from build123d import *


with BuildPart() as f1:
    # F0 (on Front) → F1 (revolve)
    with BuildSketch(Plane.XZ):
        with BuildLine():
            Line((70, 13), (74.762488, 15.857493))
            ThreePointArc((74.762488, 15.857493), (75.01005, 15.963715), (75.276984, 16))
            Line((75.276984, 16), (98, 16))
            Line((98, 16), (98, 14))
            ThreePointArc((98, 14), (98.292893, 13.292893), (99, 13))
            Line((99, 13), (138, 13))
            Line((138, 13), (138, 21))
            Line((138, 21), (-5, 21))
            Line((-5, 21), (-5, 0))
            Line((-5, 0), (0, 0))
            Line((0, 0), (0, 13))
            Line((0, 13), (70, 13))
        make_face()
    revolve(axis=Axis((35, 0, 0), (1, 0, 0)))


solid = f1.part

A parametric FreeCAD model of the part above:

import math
import FreeCAD as App
import Part
import Sketcher
Q = App.Units.Quantity

doc = App.newDocument("Part")
body = doc.addObject("PartDesign::Body", "Body")

# Sketch on XZ plane
sketch1 = body.newObject("Sketcher::SketchObject", "Sketch")
sketch1.AttachmentSupport = (doc.getObject("XZ_Plane"), [""])
sketch1.MapMode = "FlatFace"
sketch1.addGeometry(Part.LineSegment(App.Vector(70, 13, 0), App.Vector(74.8, 15.9, 0)), False)
sketch1.addGeometry(Part.ArcOfCircle(Part.Circle(App.Vector(75.3, 15, 0), App.Vector(0, 0, 1), 1), math.radians(90), math.radians(121)), False)
sketch1.addGeometry(Part.LineSegment(App.Vector(75.3, 16, 0), App.Vector(98, 16, 0)), False)
sketch1.addGeometry(Part.LineSegment(App.Vector(98, 16, 0), App.Vector(98, 14, 0)), False)
sketch1.addGeometry(Part.ArcOfCircle(Part.Circle(App.Vector(99, 14, 0), App.Vector(0, 0, 1), 1), math.radians(180), math.radians(270)), False)
sketch1.addGeometry(Part.LineSegment(App.Vector(99, 13, 0), App.Vector(138, 13, 0)), False)
sketch1.addGeometry(Part.LineSegment(App.Vector(138, 13, 0), App.Vector(138, 21, 0)), False)
sketch1.addGeometry(Part.LineSegment(App.Vector(138, 21, 0), App.Vector(-5, 21, 0)), False)
sketch1.addGeometry(Part.LineSegment(App.Vector(-5, 21, 0), App.Vector(-5, 0, 0)), False)
sketch1.addGeometry(Part.LineSegment(App.Vector(-5, 0, 0), App.Vector(0, 0, 0)), False)
sketch1.addGeometry(Part.LineSegment(App.Vector(0, 0, 0), App.Vector(0, 13, 0)), False)
sketch1.addGeometry(Part.LineSegment(App.Vector(0, 13, 0), App.Vector(70, 13, 0)), False)
sketch1.addConstraint(Sketcher.Constraint("Tangent", 0, 2, 1, 2))
sketch1.addConstraint(Sketcher.Constraint("Tangent", 1, 1, 2, 1))
sketch1.addConstraint(Sketcher.Constraint("Coincident", 2, 2, 3, 1))
sketch1.addConstraint(Sketcher.Constraint("Tangent", 3, 2, 4, 1))
sketch1.addConstraint(Sketcher.Constraint("Tangent", 4, 2, 5, 1))
sketch1.addConstraint(Sketcher.Constraint("Coincident", 5, 2, 6, 1))
sketch1.addConstraint(Sketcher.Constraint("Coincident", 6, 2, 7, 1))
sketch1.addConstraint(Sketcher.Constraint("Coincident", 7, 2, 8, 1))
sketch1.addConstraint(Sketcher.Constraint("Coincident", 8, 2, 9, 1))
sketch1.addConstraint(Sketcher.Constraint("Coincident", 9, 2, 10, 1))
sketch1.addConstraint(Sketcher.Constraint("Coincident", 10, 2, 11, 1))
sketch1.addConstraint(Sketcher.Constraint("Coincident", 11, 2, 0, 1))
sketch1.addConstraint(Sketcher.Constraint("Horizontal", 2))
sketch1.addConstraint(Sketcher.Constraint("Vertical", 3))
sketch1.addConstraint(Sketcher.Constraint("Horizontal", 5))
sketch1.addConstraint(Sketcher.Constraint("Vertical", 6))
sketch1.addConstraint(Sketcher.Constraint("Horizontal", 7))
sketch1.addConstraint(Sketcher.Constraint("Vertical", 8))
sketch1.addConstraint(Sketcher.Constraint("Horizontal", 9))
sketch1.addConstraint(Sketcher.Constraint("Vertical", 10))
sketch1.addConstraint(Sketcher.Constraint("Horizontal", 11))
sketch1.addConstraint(Sketcher.Constraint("Coincident", 9, 2, -1, 1))
sketch1.addConstraint(Sketcher.Constraint("Equal", 1, 4))
sketch1.addConstraint(Sketcher.Constraint("Horizontal", 5, 2, 10, 2))
sketch1.addConstraint(Sketcher.Constraint("Radius", 4, Q("0.999999 mm")))
sketch1.addConstraint(Sketcher.Constraint("DistanceX", 5, 1, 5, 2, Q("39 mm")))
sketch1.addConstraint(Sketcher.Constraint("DistanceX", 7, 2, 7, 1, Q("143 mm")))
sketch1.addConstraint(Sketcher.Constraint("DistanceX", 9, 1, 9, 2, Q("5 mm")))
sketch1.addConstraint(Sketcher.Constraint("DistanceX", 11, 1, 11, 2, Q("70 mm")))
sketch1.addConstraint(Sketcher.Constraint("DistanceY", 3, 2, 3, 1, Q("2 mm")))
sketch1.addConstraint(Sketcher.Constraint("DistanceY", 6, 1, 6, 2, Q("8 mm")))
sketch1.addConstraint(Sketcher.Constraint("DistanceY", 8, 2, 8, 1, Q("21 mm")))
sketch1.addConstraint(Sketcher.Constraint("DistanceX", 2, 1, 2, 2, Q("22.723016 mm")))
revolution = body.newObject("PartDesign::Revolution", "Revolution")
revolution.Profile = sketch1
revolution.ReferenceAxis = (sketch1, ["H_Axis"])
revolution.Angle = 360

doc.recompute()
